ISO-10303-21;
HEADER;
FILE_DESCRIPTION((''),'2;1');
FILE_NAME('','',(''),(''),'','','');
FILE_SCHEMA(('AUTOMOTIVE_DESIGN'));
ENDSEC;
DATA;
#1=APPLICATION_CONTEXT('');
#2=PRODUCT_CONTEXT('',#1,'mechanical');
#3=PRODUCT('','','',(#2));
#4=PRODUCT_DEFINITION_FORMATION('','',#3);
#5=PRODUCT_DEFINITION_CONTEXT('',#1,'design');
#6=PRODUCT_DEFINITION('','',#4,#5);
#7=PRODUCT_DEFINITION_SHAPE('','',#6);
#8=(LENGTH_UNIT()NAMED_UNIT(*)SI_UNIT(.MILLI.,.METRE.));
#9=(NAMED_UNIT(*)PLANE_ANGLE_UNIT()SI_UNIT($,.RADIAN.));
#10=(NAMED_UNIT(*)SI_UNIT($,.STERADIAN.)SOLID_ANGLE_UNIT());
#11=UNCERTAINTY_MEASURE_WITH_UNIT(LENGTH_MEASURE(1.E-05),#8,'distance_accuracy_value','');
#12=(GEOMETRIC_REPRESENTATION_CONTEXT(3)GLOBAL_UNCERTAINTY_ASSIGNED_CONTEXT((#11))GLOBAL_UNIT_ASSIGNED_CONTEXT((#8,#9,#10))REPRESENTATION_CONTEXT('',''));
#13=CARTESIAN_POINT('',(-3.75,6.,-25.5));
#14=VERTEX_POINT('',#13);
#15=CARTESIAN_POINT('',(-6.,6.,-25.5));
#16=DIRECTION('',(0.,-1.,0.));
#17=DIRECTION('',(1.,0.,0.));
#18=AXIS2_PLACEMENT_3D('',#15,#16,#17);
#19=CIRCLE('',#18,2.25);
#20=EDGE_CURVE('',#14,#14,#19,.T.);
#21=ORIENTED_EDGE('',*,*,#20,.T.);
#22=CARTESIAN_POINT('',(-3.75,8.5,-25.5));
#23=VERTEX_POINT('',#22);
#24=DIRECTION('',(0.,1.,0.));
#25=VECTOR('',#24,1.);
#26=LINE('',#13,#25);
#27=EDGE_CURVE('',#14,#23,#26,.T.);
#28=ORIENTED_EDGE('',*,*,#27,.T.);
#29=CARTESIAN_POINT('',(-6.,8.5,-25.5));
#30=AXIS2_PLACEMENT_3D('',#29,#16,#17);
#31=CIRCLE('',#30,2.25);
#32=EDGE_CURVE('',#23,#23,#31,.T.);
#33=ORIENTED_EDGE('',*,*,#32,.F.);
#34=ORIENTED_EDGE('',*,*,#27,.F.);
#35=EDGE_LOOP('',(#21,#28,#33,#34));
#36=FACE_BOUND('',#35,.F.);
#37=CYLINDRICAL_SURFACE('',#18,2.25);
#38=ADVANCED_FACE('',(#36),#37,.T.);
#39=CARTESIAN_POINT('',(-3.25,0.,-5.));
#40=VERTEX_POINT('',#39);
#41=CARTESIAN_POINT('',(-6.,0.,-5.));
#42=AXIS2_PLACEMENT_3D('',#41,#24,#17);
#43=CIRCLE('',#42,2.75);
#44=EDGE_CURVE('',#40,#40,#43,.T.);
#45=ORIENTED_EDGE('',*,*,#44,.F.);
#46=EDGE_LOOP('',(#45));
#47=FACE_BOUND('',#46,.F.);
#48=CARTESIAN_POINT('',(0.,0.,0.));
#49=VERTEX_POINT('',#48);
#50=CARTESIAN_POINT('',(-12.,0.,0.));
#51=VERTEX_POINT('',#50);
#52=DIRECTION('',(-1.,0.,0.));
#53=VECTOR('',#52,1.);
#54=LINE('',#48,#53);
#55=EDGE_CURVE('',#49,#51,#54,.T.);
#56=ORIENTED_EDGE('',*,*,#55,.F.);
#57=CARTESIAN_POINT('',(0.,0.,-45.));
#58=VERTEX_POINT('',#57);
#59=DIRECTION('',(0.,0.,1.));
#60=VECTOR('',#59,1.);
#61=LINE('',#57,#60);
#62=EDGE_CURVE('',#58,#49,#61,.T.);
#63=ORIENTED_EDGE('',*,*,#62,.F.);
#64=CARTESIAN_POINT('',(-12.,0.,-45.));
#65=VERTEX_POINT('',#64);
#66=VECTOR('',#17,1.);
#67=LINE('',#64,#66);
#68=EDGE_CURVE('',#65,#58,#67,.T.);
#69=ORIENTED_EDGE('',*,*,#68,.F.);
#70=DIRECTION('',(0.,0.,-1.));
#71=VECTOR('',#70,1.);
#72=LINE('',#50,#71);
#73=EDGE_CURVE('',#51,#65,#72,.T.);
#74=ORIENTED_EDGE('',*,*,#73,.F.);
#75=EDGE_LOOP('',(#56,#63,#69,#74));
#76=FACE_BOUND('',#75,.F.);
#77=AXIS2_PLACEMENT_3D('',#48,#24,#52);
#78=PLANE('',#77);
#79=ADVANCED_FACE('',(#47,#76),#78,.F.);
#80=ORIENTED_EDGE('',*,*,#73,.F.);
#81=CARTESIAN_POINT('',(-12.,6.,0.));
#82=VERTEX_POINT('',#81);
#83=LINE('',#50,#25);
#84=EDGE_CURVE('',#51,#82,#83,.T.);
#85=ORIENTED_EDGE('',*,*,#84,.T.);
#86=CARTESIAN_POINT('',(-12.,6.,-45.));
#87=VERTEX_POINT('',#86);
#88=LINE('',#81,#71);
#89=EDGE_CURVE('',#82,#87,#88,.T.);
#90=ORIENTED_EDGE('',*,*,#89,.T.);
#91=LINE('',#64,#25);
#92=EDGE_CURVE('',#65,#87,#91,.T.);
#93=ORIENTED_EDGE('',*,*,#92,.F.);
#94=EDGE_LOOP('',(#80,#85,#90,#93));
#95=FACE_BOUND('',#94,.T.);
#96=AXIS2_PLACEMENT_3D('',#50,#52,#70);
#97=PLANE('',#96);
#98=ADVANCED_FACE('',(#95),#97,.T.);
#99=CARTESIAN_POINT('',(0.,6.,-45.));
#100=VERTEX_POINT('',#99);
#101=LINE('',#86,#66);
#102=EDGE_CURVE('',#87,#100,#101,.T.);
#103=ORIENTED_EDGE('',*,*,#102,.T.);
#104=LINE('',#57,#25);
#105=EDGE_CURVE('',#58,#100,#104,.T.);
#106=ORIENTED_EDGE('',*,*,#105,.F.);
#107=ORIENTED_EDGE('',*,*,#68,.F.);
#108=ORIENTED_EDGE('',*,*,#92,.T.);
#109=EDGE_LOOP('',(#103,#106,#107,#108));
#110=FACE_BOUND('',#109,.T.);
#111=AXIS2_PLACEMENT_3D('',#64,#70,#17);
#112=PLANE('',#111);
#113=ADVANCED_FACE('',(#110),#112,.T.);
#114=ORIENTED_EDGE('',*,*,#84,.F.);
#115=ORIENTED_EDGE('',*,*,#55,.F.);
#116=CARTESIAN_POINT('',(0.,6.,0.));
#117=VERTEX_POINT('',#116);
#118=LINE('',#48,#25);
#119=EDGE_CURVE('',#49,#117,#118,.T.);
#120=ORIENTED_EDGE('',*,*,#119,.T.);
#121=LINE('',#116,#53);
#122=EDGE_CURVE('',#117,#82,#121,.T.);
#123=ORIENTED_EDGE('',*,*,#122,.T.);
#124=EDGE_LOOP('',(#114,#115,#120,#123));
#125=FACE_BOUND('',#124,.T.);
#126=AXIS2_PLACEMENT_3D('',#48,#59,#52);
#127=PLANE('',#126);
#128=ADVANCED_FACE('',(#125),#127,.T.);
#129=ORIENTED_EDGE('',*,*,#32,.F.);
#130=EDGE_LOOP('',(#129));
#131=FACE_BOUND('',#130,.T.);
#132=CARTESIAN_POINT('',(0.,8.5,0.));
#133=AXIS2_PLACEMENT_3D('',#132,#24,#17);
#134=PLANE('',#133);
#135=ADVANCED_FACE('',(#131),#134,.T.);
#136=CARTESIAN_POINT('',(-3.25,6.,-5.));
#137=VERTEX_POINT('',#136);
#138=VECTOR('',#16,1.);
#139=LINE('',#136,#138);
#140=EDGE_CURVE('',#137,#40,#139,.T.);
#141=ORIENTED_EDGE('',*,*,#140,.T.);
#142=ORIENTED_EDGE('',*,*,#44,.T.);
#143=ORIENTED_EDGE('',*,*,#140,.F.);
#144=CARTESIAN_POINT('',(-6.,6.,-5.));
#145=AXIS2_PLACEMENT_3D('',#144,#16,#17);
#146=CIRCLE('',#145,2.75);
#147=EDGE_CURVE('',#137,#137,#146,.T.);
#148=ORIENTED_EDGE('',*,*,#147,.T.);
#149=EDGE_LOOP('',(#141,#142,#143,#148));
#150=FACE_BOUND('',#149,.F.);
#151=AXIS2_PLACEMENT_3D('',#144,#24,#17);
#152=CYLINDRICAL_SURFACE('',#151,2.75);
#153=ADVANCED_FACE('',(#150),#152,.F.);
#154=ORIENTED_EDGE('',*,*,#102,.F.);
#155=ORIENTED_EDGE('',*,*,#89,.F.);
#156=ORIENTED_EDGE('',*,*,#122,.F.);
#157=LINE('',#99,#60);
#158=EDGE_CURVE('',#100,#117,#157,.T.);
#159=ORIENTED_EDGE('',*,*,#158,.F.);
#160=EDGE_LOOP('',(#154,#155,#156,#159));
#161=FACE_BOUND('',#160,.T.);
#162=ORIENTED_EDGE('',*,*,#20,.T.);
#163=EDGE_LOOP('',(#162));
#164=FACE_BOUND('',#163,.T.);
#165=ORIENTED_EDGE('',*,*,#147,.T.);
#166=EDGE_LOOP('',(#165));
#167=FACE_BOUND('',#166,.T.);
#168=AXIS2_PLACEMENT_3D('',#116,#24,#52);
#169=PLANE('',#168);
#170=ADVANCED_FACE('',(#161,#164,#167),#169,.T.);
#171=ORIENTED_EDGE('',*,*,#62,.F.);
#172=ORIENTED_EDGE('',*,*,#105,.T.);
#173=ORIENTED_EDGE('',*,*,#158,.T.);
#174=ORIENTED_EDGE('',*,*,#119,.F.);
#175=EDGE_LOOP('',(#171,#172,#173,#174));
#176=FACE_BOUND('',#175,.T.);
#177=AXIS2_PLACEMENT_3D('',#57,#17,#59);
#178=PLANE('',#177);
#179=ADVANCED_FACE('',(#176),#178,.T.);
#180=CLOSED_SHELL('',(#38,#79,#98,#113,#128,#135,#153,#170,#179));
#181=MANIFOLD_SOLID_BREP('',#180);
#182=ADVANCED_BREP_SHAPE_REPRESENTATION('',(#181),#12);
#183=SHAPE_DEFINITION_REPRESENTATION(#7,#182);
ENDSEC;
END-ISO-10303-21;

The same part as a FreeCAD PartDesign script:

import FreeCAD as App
import Part
import Sketcher
Q = App.Units.Quantity


def add_polygon(sketch, points):
    """Adds a closed chain of lines whose ends are joined by coincident constraints."""
    first, n = sketch.GeometryCount, len(points)
    for a, b in zip(points, points[1:] + points[:1]):
        sketch.addGeometry(Part.LineSegment(App.Vector(*a, 0), App.Vector(*b, 0)), False)
    for i in range(n):
        sketch.addConstraint(Sketcher.Constraint("Coincident", first + i, 2, first + (i + 1) % n, 1))

doc = App.newDocument("Part")
params = doc.addObject("Spreadsheet::Sheet", "Params")
for row, (alias, value) in enumerate([
    ("sketch1_width", "12 mm"),
    ("sketch1_height", "45 mm"),
    ("pad1_length", "6 mm"),
    ("sketch2_diameter", "5.5 mm"),
    ("pocket1_length", "6 mm"),
    ("sketch3_diameter", "4.5 mm"),
    ("pad2_length", "2.5 mm"),
], start=1):
    params.set(f"A{row}", alias)
    params.set(f"B{row}", "=" + value)
    params.setAlias(f"B{row}", alias)

body = doc.addObject("PartDesign::Body", "Body")

# Sketch on XZ plane
sketch1 = doc.addObject("Sketcher::SketchObject", "Sketch")
body.addObject(sketch1)
sketch1.AttachmentSupport = (doc.XZ_Plane, [""])
sketch1.MapMode = "FlatFace"
add_polygon(sketch1, [(-12, 0), (0, 0), (0, -45), (-12, -45)])  # lines 0-3
sketch1.addConstraint([
    Sketcher.Constraint("Horizontal", 0),
    Sketcher.Constraint("Vertical", 1),
    Sketcher.Constraint("Horizontal", 2),
    Sketcher.Constraint("Vertical", 3),
    Sketcher.Constraint("Coincident", 0, 2, -1, 1),
    Sketcher.Constraint("DistanceX", 0, 1, 0, 2, Q("12 mm")),
    Sketcher.Constraint("DistanceY", 1, 2, 1, 1, Q("45 mm")),
])
sketch1.setExpression("Constraints[9]", "Params.sketch1_width")
sketch1.setExpression("Constraints[10]", "Params.sketch1_height")
pad1 = doc.addObject("PartDesign::Pad", "Pad")
body.addObject(pad1)
pad1.Profile = sketch1
pad1.setExpression("Length", "Params.pad1_length")
pad1.Reversed = True

# Sketch on XZ plane
sketch2 = doc.addObject("Sketcher::SketchObject", "Sketch001")
body.addObject(sketch2)
sketch2.AttachmentSupport = (doc.XZ_Plane, [""])
sketch2.MapMode = "FlatFace"
sketch2.AttachmentOffset = App.Placement(App.Vector(0, 0, -6), App.Rotation())
sketch2.addGeometry(Part.Circle(App.Vector(-6, -5, 0), App.Vector(0, 0, 1), 2.8), False)
sketch2.addConstraint([
    Sketcher.Constraint("Diameter", 0, Q("5.5 mm")),
    Sketcher.Constraint("DistanceY", 0, 3, -1, 1, Q("5 mm")),
    Sketcher.Constraint("DistanceX", 0, 3, -1, 1, Q("6 mm")),
])
sketch2.setExpression("Constraints[0]", "Params.sketch2_diameter")
pocket1 = doc.addObject("PartDesign::Pocket", "Pocket")
body.addObject(pocket1)
pocket1.Profile = sketch2
pocket1.setExpression("Length", "Params.pocket1_length")
pocket1.Reversed = True

# Sketch on XZ plane
sketch3 = doc.addObject("Sketcher::SketchObject", "Sketch002")
body.addObject(sketch3)
sketch3.AttachmentSupport = (doc.XZ_Plane, [""])
sketch3.MapMode = "FlatFace"
sketch3.AttachmentOffset = App.Placement(App.Vector(0, 0, -6), App.Rotation())
sketch3.addGeometry(Part.Circle(App.Vector(-6, -25.5, 0), App.Vector(0, 0, 1), 2.2), False)
sketch3.addConstraint([
    Sketcher.Constraint("Diameter", 0, Q("4.5 mm")),
    Sketcher.Constraint("DistanceX", 0, 3, -1, 1, Q("6 mm")),
    Sketcher.Constraint("DistanceY", 0, 3, -1, 1, Q("25.5 mm")),
])
sketch3.setExpression("Constraints[0]", "Params.sketch3_diameter")
pad2 = doc.addObject("PartDesign::Pad", "Pad001")
body.addObject(pad2)
pad2.Profile = sketch3
pad2.setExpression("Length", "Params.pad2_length")
pad2.Reversed = True

doc.recompute()
